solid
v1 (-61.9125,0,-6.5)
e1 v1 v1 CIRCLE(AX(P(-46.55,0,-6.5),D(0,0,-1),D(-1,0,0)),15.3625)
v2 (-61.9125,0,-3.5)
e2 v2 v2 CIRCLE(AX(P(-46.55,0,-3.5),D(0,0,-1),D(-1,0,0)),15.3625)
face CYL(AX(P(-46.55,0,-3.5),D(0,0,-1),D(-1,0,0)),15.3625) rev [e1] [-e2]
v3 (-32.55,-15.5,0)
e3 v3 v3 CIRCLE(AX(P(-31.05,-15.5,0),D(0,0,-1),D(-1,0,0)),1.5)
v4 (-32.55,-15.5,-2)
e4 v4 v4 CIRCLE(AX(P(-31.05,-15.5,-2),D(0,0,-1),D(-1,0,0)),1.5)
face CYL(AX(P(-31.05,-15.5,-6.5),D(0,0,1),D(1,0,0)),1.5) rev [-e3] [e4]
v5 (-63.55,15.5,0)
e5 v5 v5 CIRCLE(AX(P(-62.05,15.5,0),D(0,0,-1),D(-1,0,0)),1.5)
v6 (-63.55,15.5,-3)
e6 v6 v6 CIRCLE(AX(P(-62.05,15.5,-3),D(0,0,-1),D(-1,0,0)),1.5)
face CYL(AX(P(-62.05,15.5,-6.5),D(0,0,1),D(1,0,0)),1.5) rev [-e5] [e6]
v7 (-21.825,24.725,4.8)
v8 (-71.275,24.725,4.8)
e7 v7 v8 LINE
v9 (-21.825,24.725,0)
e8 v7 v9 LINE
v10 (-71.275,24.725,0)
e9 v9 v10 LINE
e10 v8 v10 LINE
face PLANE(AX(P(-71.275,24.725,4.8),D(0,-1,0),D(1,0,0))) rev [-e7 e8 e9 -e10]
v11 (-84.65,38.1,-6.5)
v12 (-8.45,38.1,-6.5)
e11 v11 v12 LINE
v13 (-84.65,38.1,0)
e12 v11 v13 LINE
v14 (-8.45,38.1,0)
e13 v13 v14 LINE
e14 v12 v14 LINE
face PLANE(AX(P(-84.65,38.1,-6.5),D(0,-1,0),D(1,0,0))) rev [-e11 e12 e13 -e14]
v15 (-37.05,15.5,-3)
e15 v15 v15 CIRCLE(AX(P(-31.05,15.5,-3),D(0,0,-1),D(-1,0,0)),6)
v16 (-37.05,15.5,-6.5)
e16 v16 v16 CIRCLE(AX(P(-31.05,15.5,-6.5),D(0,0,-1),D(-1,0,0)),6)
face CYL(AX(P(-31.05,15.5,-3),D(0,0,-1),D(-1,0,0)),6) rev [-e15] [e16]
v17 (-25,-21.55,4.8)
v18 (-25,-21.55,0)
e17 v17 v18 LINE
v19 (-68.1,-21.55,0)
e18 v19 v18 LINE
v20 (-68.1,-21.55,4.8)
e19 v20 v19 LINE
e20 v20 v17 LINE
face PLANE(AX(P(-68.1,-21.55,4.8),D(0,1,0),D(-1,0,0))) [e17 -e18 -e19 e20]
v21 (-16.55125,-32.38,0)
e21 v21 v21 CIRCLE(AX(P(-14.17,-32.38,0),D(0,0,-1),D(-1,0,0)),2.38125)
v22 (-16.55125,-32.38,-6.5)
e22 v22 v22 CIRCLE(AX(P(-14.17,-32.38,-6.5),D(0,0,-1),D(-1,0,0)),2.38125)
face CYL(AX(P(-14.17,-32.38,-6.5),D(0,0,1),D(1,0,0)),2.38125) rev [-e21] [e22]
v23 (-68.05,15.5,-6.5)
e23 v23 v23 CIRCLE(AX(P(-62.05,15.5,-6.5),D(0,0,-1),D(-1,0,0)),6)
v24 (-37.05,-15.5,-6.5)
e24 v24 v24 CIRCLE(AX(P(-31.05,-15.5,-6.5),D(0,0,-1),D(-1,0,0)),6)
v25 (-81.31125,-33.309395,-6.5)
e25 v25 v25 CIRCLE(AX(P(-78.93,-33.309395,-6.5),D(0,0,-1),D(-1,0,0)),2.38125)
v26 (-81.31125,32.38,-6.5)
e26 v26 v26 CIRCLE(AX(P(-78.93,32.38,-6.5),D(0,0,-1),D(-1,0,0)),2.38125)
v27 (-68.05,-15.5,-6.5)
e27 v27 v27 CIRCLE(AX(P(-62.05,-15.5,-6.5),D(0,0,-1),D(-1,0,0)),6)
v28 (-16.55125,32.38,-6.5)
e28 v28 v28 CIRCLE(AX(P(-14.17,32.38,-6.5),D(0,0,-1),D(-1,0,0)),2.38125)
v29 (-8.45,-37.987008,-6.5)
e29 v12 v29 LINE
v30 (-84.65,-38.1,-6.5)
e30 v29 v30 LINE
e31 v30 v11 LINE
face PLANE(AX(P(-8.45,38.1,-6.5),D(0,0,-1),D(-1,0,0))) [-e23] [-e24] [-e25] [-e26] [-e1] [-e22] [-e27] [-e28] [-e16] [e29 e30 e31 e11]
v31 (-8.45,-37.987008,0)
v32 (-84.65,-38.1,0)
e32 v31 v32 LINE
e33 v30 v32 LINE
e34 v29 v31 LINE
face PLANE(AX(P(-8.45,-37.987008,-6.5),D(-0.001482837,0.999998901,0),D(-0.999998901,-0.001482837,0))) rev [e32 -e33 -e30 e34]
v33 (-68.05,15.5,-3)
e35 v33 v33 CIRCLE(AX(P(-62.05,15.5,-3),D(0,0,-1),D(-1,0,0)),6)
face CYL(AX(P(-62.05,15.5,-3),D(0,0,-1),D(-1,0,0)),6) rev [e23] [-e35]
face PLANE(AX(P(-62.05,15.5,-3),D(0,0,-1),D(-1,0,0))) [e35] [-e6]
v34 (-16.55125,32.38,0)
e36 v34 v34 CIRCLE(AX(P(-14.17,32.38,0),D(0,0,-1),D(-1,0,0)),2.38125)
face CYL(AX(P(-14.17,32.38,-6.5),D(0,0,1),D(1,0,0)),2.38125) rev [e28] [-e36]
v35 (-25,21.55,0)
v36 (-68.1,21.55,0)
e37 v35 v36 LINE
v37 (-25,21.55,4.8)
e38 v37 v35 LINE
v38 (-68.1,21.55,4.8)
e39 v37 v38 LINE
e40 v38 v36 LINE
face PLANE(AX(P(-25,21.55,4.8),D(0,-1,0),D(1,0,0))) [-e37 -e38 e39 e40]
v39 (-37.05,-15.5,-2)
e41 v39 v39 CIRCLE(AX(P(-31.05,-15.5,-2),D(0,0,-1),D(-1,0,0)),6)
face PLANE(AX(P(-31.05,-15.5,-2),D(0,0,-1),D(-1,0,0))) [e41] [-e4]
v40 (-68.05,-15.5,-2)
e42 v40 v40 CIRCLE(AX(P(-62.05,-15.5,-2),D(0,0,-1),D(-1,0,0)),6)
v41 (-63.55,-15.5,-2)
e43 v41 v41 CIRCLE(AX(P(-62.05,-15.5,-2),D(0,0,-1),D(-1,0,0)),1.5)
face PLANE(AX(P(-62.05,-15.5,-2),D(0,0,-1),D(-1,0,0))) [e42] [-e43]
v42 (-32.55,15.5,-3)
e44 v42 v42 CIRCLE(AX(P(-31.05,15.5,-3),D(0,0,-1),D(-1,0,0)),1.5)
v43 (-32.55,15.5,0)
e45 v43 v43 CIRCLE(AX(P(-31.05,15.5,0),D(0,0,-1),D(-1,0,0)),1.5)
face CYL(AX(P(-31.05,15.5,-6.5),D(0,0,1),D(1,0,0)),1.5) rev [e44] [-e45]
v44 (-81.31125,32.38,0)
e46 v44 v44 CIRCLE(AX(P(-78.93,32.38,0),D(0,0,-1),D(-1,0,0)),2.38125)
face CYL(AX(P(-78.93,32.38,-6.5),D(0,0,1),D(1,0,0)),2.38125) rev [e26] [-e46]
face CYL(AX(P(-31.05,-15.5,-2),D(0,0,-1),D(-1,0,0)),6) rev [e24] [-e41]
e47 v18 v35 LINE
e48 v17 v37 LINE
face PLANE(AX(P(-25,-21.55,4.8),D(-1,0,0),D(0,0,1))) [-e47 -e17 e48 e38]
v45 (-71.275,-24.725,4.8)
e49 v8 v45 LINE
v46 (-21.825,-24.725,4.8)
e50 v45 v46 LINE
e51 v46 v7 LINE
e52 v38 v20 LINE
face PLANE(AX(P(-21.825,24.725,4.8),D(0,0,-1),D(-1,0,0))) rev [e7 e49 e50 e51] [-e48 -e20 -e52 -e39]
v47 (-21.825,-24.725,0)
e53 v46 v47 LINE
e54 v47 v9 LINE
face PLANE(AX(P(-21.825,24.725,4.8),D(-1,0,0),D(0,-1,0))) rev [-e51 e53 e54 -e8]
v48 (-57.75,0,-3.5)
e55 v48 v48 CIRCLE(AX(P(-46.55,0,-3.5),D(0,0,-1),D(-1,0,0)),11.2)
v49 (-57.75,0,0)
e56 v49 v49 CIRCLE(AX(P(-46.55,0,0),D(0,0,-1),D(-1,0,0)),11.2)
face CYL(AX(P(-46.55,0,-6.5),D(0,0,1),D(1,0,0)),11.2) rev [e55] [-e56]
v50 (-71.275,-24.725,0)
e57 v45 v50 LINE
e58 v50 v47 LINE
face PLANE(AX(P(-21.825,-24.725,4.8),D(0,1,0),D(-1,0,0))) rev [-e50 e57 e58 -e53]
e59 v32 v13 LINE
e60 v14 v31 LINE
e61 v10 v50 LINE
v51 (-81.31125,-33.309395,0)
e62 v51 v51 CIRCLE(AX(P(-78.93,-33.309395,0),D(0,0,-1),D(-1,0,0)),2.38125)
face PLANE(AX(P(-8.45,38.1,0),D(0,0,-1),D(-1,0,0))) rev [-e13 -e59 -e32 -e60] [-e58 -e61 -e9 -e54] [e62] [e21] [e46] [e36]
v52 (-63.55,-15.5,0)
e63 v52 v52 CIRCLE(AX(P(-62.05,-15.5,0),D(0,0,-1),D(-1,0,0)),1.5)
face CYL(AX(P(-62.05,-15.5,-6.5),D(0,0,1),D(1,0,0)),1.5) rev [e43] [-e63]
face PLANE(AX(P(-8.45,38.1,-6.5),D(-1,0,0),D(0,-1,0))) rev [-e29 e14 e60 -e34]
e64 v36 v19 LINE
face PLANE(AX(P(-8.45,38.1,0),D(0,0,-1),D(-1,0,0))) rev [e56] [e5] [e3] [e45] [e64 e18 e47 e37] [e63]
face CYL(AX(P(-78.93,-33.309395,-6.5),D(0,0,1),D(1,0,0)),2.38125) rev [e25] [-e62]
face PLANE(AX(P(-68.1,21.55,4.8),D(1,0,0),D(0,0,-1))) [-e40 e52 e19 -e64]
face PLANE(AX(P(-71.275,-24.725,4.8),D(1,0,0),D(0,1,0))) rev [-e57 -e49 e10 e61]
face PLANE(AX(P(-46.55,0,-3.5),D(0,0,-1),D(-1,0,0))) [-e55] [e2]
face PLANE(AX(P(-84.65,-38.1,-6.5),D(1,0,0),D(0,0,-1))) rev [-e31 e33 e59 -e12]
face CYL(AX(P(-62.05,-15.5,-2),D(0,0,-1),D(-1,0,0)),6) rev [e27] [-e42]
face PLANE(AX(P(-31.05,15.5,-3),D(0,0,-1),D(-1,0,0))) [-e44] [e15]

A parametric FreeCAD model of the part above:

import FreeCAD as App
import Part
import Sketcher

V = App.Vector

doc = App.newDocument("Part")
body = doc.addObject("PartDesign::Body", "Body")

# Sketch on XY plane
sketch1 = body.newObject("Sketcher::SketchObject", "Sketch")
sketch1.AttachmentSupport = (doc.getObject("XY_Plane"), [""])
sketch1.MapMode = "FlatFace"
sketch1.addGeometry([
    Part.LineSegment(V(-71.275, 24.725, 0), V(-71.275, -24.725, 0)),  # 0
    Part.LineSegment(V(-71.275, -24.725, 0), V(-21.825, -24.725, 0)),  # 1
    Part.LineSegment(V(-21.825, -24.725, 0), V(-21.825, 24.725, 0)),  # 2
    Part.LineSegment(V(-21.825, 24.725, 0), V(-71.275, 24.725, 0)),  # 3
    Part.LineSegment(V(-25, -21.55, 0), V(-68.1, -21.55, 0)),  # 4
    Part.LineSegment(V(-68.1, -21.55, 0), V(-68.1, 21.55, 0)),  # 5
    Part.LineSegment(V(-68.1, 21.55, 0), V(-25, 21.55, 0)),  # 6
    Part.LineSegment(V(-25, 21.55, 0), V(-25, -21.55, 0)),  # 7
], False)
sketch1.addConstraint([
    Sketcher.Constraint("Coincident", 0, 2, 1, 1),
    Sketcher.Constraint("Coincident", 1, 2, 2, 1),
    Sketcher.Constraint("Coincident", 2, 2, 3, 1),
    Sketcher.Constraint("Coincident", 3, 2, 0, 1),
    Sketcher.Constraint("Coincident", 4, 2, 5, 1),
    Sketcher.Constraint("Coincident", 5, 2, 6, 1),
    Sketcher.Constraint("Coincident", 6, 2, 7, 1),
    Sketcher.Constraint("Coincident", 7, 2, 4, 1),
    Sketcher.Constraint("Vertical", 0),
    Sketcher.Constraint("Horizontal", 1),
    Sketcher.Constraint("Vertical", 2),
    Sketcher.Constraint("Horizontal", 3),
    Sketcher.Constraint("Horizontal", 4),
    Sketcher.Constraint("Vertical", 5),
    Sketcher.Constraint("Horizontal", 6),
    Sketcher.Constraint("Vertical", 7),
    Sketcher.Constraint("Equal", 3, 0),
    Sketcher.Constraint("Equal", 6, 5),
    Sketcher.Constraint("DistanceX", 4, 2, 4, 1, 43.1),
    Sketcher.Constraint("DistanceX", 6, 2, -1, 1, 25.0),
    Sketcher.Constraint("DistanceX", 1, 1, 1, 2, 49.45),
    Sketcher.Constraint("DistanceY", 4, 2, -1, 1, 21.55),
    Sketcher.Constraint("DistanceX", 0, 2, -1, 1, 71.275),
    Sketcher.Constraint("DistanceY", 0, 2, -1, 1, 24.725),
])
pad1 = body.newObject("PartDesign::Pad", "Pad")
pad1.Profile = sketch1
pad1.Length = 4.8

# Sketch on XY plane
sketch2 = body.newObject("Sketcher::SketchObject", "Sketch001")
sketch2.AttachmentSupport = (doc.getObject("XY_Plane"), [""])
sketch2.MapMode = "FlatFace"
sketch2.addGeometry([
    Part.LineSegment(V(-8.45, 38.1, 0), V(-8.45, -37.987008, 0)),  # 0
    Part.LineSegment(V(-8.45, -37.987008, 0), V(-84.65, -38.1, 0)),  # 1
    Part.LineSegment(V(-84.65, -38.1, 0), V(-84.65, 38.1, 0)),  # 2
    Part.LineSegment(V(-84.65, 38.1, 0), V(-8.45, 38.1, 0)),  # 3
    Part.Circle(V(-14.17, -32.38, 0), V(0, 0, 1), 2.38125),  # 4
    Part.Circle(V(-31.05, -15.5, 0), V(0, 0, 1), 1.5),  # 5
    Part.Circle(V(-78.93, -33.309395, 0), V(0, 0, 1), 2.38125),  # 6
    Part.Circle(V(-62.05, -15.5, 0), V(0, 0, 1), 1.5),  # 7
    Part.Circle(V(-46.55, 0, 0), V(0, 0, 1), 11.2),  # 8
    Part.Circle(V(-31.05, 15.5, 0), V(0, 0, 1), 1.5),  # 9
    Part.Circle(V(-14.17, 32.38, 0), V(0, 0, 1), 2.38125),  # 10
    Part.Circle(V(-62.05, 15.5, 0), V(0, 0, 1), 1.5),  # 11
    Part.Circle(V(-78.93, 32.38, 0), V(0, 0, 1), 2.38125),  # 12
], False)
sketch2.addConstraint([
    Sketcher.Constraint("Coincident", 0, 2, 1, 1),
    Sketcher.Constraint("Coincident", 1, 2, 2, 1),
    Sketcher.Constraint("Coincident", 2, 2, 3, 1),
    Sketcher.Constraint("Coincident", 3, 2, 0, 1),
    Sketcher.Constraint("Vertical", 0),
    Sketcher.Constraint("Vertical", 2),
    Sketcher.Constraint("Horizontal", 3),
    Sketcher.Constraint("Equal", 4, 6),
    Sketcher.Constraint("Equal", 5, 7),
    Sketcher.Constraint("Equal", 7, 9),
    Sketcher.Constraint("Equal", 6, 10),
    Sketcher.Constraint("Equal", 9, 11),
    Sketcher.Constraint("Equal", 10, 12),
    Sketcher.Constraint("Symmetric", 5, 3, 9, 3, -1),
    Sketcher.Constraint("Symmetric", 4, 3, 10, 3, -1),
    Sketcher.Constraint("Symmetric", 7, 3, 11, 3, -1),
    Sketcher.Constraint("PointOnObject", 8, 3, -1),
    Sketcher.Constraint("Horizontal", 5, 3, 7, 3),
    Sketcher.Constraint("Horizontal", 10, 3, 12, 3),
    Sketcher.Constraint("Vertical", 6, 3, 12, 3),
    Sketcher.Constraint("Equal", 3, 2),
    Sketcher.Constraint("Diameter", 5, 3.0),
    Sketcher.Constraint("Diameter", 8, 22.4),
    Sketcher.Constraint("DistanceX", 3, 1, 3, 2, 76.2),
    Sketcher.Constraint("DistanceX", 7, 3, 5, 3, 31.0),
    Sketcher.Constraint("DistanceY", 5, 3, 9, 3, 31.0),
    Sketcher.Constraint("Diameter", 4, 4.7625),
    Sketcher.Constraint("DistanceY", 1, 2, -1, 1, 38.1),
    Sketcher.Constraint("DistanceX", 8, 3, 5, 3, 15.5),
    Sketcher.Constraint("DistanceX", 5, 3, 0, 2, 22.6),
    Sketcher.Constraint("DistanceX", 4, 3, -1, 1, 14.17),
    Sketcher.Constraint("DistanceY", 4, 3, -1, 1, 32.38),
    Sketcher.Constraint("DistanceX", 5, 3, -1, 1, 31.05),
    Sketcher.Constraint("DistanceX", 6, 3, -1, 1, 78.93),
    Sketcher.Constraint("DistanceY", 0, 2, 0, 1, 76.087008),
    Sketcher.Constraint("DistanceY", 6, 3, -1, 1, 33.309395),
])
pad2 = body.newObject("PartDesign::Pad", "Pad001")
pad2.Profile = sketch2
pad2.Length = 6.5
pad2.Reversed = True

# Sketch on XY plane
sketch3 = body.newObject("Sketcher::SketchObject", "Sketch002")
sketch3.AttachmentSupport = (doc.getObject("XY_Plane"), [""])
sketch3.MapMode = "FlatFace"
sketch3.AttachmentOffset = App.Placement(V(0, 0, -6.5), App.Rotation())
sketch3.addGeometry([
    Part.Circle(V(-62.05, -15.5, 0), V(0, 0, 1), 6),
    Part.Circle(V(-31.05, -15.5, 0), V(0, 0, 1), 6),
], False)
sketch3.addConstraint([
    Sketcher.Constraint("Equal", 0, 1),
    Sketcher.Constraint("Horizontal", 0, 3, 1, 3),
    Sketcher.Constraint("Diameter", 0, 12.0),
    Sketcher.Constraint("DistanceX", 0, 3, 1, 3, 31.0),
    Sketcher.Constraint("DistanceY", 0, 3, -1, 1, 15.5),
    Sketcher.Constraint("DistanceX", 0, 3, -1, 1, 62.05),
])
pocket1 = body.newObject("PartDesign::Pocket", "Pocket")
pocket1.Profile = sketch3
pocket1.Length = 4.5
pocket1.Reversed = True

# Sketch on XY plane
sketch4 = body.newObject("Sketcher::SketchObject", "Sketch003")
sketch4.AttachmentSupport = (doc.getObject("XY_Plane"), [""])
sketch4.MapMode = "FlatFace"
sketch4.AttachmentOffset = App.Placement(V(0, 0, -6.5), App.Rotation())
sketch4.addGeometry([
    Part.Circle(V(-62.05, 15.5, 0), V(0, 0, 1), 6),
    Part.Circle(V(-31.05, 15.5, 0), V(0, 0, 1), 6),
], False)
sketch4.addConstraint([
    Sketcher.Constraint("Equal", 0, 1),
    Sketcher.Constraint("Horizontal", 0, 3, 1, 3),
    Sketcher.Constraint("Diameter", 0, 12.0),
    Sketcher.Constraint("DistanceX", 0, 3, 1, 3, 31.0),
    Sketcher.Constraint("DistanceY", -1, 1, 0, 3, 15.5),
    Sketcher.Constraint("DistanceX", 0, 3, -1, 1, 62.05),
])
pocket2 = body.newObject("PartDesign::Pocket", "Pocket001")
pocket2.Profile = sketch4
pocket2.Length = 3.5
pocket2.Reversed = True

# Sketch on XY plane
sketch5 = body.newObject("Sketcher::SketchObject", "Sketch004")
sketch5.AttachmentSupport = (doc.getObject("XY_Plane"), [""])
sketch5.MapMode = "FlatFace"
sketch5.AttachmentOffset = App.Placement(V(0, 0, -6.5), App.Rotation())
sketch5.addGeometry(Part.Circle(V(-46.55, 0, 0), V(0, 0, 1), 15.3625), False)
sketch5.addConstraint([
    Sketcher.Constraint("PointOnObject", 0, 3, -1),
    Sketcher.Constraint("Diameter", 0, 30.725),
    Sketcher.Constraint("DistanceX", 0, 3, -1, 1, 46.55),
])
pocket3 = body.newObject("PartDesign::Pocket", "Pocket002")
pocket3.Profile = sketch5
pocket3.Length = 3
pocket3.Reversed = True

doc.recompute()
